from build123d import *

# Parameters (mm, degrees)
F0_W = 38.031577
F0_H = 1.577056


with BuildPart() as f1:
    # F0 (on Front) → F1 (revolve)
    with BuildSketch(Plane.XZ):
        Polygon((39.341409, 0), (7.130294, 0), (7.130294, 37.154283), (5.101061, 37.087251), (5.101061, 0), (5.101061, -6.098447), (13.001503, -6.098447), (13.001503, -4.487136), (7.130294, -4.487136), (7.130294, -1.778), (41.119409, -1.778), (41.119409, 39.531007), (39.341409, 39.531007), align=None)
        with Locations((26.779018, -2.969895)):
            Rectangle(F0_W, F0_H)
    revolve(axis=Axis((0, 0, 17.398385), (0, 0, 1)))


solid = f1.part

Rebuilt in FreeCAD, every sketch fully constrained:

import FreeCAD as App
import Part
import Sketcher

V = App.Vector
Q = App.Units.Quantity

doc = App.newDocument("Part")
body = doc.addObject("PartDesign::Body", "Body")
body.AllowCompound = True

# Sketch on XZ plane
sketch1 = doc.addObject("Sketcher::SketchObject", "Sketch")
body.addObject(sketch1)
sketch1.AttachmentSupport = (doc.XZ_Plane, [""])
sketch1.MapMode = "FlatFace"
sketch1.addGeometry(Part.LineSegment(V(39.3, 0, 0), V(7.1, 0, 0)), False)
sketch1.addGeometry(Part.LineSegment(V(7.1, 0, 0), V(7.1, 37.2, 0)), False)
sketch1.addGeometry(Part.LineSegment(V(7.1, 37.2, 0), V(5.1, 37.1, 0)), False)
sketch1.addGeometry(Part.LineSegment(V(5.1, 37.1, 0), V(5.1, -6.1, 0)), False)
sketch1.addGeometry(Part.LineSegment(V(5.1, -6.1, 0), V(13, -6.1, 0)), False)
sketch1.addGeometry(Part.LineSegment(V(13, -6.1, 0), V(13, -4.5, 0)), False)
sketch1.addGeometry(Part.LineSegment(V(13, -4.5, 0), V(7.1, -4.5, 0)), False)
sketch1.addGeometry(Part.LineSegment(V(7.1, -4.5, 0), V(7.1, -1.8, 0)), False)
sketch1.addGeometry(Part.LineSegment(V(7.1, -1.8, 0), V(41.1, -1.8, 0)), False)
sketch1.addGeometry(Part.LineSegment(V(41.1, -1.8, 0), V(41.1, 39.5, 0)), False)
sketch1.addGeometry(Part.LineSegment(V(41.1, 39.5, 0), V(39.3, 39.5, 0)), False)
sketch1.addGeometry(Part.LineSegment(V(39.3, 39.5, 0), V(39.3, 0, 0)), False)
sketch1.addGeometry(Part.LineSegment(V(7.8, -2.2, 0), V(7.8, -3.8, 0)), False)
sketch1.addGeometry(Part.LineSegment(V(7.8, -3.8, 0), V(45.8, -3.8, 0)), False)
sketch1.addGeometry(Part.LineSegment(V(45.8, -3.8, 0), V(45.8, -2.2, 0)), False)
sketch1.addGeometry(Part.LineSegment(V(45.8, -2.2, 0), V(7.8, -2.2, 0)), False)
sketch1.addConstraint(Sketcher.Constraint("Coincident", 0, 2, 1, 1))
sketch1.addConstraint(Sketcher.Constraint("Coincident", 1, 2, 2, 1))
sketch1.addConstraint(Sketcher.Constraint("Coincident", 2, 2, 3, 1))
sketch1.addConstraint(Sketcher.Constraint("Coincident", 3, 2, 4, 1))
sketch1.addConstraint(Sketcher.Constraint("Coincident", 4, 2, 5, 1))
sketch1.addConstraint(Sketcher.Constraint("Coincident", 5, 2, 6, 1))
sketch1.addConstraint(Sketcher.Constraint("Coincident", 6, 2, 7, 1))
sketch1.addConstraint(Sketcher.Constraint("Coincident", 7, 2, 8, 1))
sketch1.addConstraint(Sketcher.Constraint("Coincident", 8, 2, 9, 1))
sketch1.addConstraint(Sketcher.Constraint("Coincident", 9, 2, 10, 1))
sketch1.addConstraint(Sketcher.Constraint("Coincident", 10, 2, 11, 1))
sketch1.addConstraint(Sketcher.Constraint("Coincident", 11, 2, 0, 1))
sketch1.addConstraint(Sketcher.Constraint("Coincident", 12, 2, 13, 1))
sketch1.addConstraint(Sketcher.Constraint("Coincident", 13, 2, 14, 1))
sketch1.addConstraint(Sketcher.Constraint("Coincident", 14, 2, 15, 1))
sketch1.addConstraint(Sketcher.Constraint("Coincident", 15, 2, 12, 1))
sketch1.addConstraint(Sketcher.Constraint("Horizontal", 0))
sketch1.addConstraint(Sketcher.Constraint("Vertical", 1))
sketch1.addConstraint(Sketcher.Constraint("Vertical", 3))
sketch1.addConstraint(Sketcher.Constraint("Horizontal", 4))
sketch1.addConstraint(Sketcher.Constraint("Vertical", 5))
sketch1.addConstraint(Sketcher.Constraint("Horizontal", 6))
sketch1.addConstraint(Sketcher.Constraint("Vertical", 7))
sketch1.addConstraint(Sketcher.Constraint("Horizontal", 8))
sketch1.addConstraint(Sketcher.Constraint("Vertical", 9))
sketch1.addConstraint(Sketcher.Constraint("Horizontal", 10))
sketch1.addConstraint(Sketcher.Constraint("Vertical", 11))
sketch1.addConstraint(Sketcher.Constraint("Vertical", 12))
sketch1.addConstraint(Sketcher.Constraint("Horizontal", 13))
sketch1.addConstraint(Sketcher.Constraint("Vertical", 14))
sketch1.addConstraint(Sketcher.Constraint("Horizontal", 15))
sketch1.addConstraint(Sketcher.Constraint("PointOnObject", 0, 2, -1))
sketch1.addConstraint(Sketcher.Constraint("Vertical", 1, 2, 6, 2))
sketch1.addConstraint(Sketcher.Constraint("DistanceX", 10, 2, 10, 1, Q("0.07 in")))
sketch1.addConstraint(Sketcher.Constraint("DistanceY", 7, 2, -1, 1, Q("0.07 in")))
sketch1.addConstraint(Sketcher.Constraint("DistanceY", 3, 2, 3, 1, 43.185698))
sketch1.addConstraint(Sketcher.Constraint("DistanceX", 6, 2, 6, 1, 5.871209))
sketch1.addConstraint(Sketcher.Constraint("DistanceY", 5, 1, 5, 2, 1.611311))
sketch1.addConstraint(Sketcher.Constraint("Distance", 2, 2.03034))
sketch1.addConstraint(Sketcher.Constraint("DistanceX", 0, 2, 0, 1, 32.211115))
sketch1.addConstraint(Sketcher.Constraint("DistanceX", 4, 1, 4, 2, 7.900442))
sketch1.addConstraint(Sketcher.Constraint("DistanceX", 13, 1, 13, 2, 38.031577))
sketch1.addConstraint(Sketcher.Constraint("DistanceY", 1, 1, 1, 2, 37.154283))
sketch1.addConstraint(Sketcher.Constraint("DistanceY", 9, 1, 9, 2, 41.309007))
sketch1.addConstraint(Sketcher.Constraint("DistanceY", 12, 2, 12, 1, 1.577056))
sketch1.addConstraint(Sketcher.Constraint("DistanceX", -1, 1, 2, 2, 5.101061))
sketch1.addConstraint(Sketcher.Constraint("DistanceX", -1, 1, 12, 2, 7.763229))
sketch1.addConstraint(Sketcher.Constraint("DistanceY", 5, 2, 14, 2, 2.305769))
revolution = doc.addObject("PartDesign::Revolution", "Revolution")
body.addObject(revolution)
revolution.Profile = sketch1
revolution.ReferenceAxis = (sketch1, ["V_Axis"])
revolution.Angle = 360

doc.recompute()
